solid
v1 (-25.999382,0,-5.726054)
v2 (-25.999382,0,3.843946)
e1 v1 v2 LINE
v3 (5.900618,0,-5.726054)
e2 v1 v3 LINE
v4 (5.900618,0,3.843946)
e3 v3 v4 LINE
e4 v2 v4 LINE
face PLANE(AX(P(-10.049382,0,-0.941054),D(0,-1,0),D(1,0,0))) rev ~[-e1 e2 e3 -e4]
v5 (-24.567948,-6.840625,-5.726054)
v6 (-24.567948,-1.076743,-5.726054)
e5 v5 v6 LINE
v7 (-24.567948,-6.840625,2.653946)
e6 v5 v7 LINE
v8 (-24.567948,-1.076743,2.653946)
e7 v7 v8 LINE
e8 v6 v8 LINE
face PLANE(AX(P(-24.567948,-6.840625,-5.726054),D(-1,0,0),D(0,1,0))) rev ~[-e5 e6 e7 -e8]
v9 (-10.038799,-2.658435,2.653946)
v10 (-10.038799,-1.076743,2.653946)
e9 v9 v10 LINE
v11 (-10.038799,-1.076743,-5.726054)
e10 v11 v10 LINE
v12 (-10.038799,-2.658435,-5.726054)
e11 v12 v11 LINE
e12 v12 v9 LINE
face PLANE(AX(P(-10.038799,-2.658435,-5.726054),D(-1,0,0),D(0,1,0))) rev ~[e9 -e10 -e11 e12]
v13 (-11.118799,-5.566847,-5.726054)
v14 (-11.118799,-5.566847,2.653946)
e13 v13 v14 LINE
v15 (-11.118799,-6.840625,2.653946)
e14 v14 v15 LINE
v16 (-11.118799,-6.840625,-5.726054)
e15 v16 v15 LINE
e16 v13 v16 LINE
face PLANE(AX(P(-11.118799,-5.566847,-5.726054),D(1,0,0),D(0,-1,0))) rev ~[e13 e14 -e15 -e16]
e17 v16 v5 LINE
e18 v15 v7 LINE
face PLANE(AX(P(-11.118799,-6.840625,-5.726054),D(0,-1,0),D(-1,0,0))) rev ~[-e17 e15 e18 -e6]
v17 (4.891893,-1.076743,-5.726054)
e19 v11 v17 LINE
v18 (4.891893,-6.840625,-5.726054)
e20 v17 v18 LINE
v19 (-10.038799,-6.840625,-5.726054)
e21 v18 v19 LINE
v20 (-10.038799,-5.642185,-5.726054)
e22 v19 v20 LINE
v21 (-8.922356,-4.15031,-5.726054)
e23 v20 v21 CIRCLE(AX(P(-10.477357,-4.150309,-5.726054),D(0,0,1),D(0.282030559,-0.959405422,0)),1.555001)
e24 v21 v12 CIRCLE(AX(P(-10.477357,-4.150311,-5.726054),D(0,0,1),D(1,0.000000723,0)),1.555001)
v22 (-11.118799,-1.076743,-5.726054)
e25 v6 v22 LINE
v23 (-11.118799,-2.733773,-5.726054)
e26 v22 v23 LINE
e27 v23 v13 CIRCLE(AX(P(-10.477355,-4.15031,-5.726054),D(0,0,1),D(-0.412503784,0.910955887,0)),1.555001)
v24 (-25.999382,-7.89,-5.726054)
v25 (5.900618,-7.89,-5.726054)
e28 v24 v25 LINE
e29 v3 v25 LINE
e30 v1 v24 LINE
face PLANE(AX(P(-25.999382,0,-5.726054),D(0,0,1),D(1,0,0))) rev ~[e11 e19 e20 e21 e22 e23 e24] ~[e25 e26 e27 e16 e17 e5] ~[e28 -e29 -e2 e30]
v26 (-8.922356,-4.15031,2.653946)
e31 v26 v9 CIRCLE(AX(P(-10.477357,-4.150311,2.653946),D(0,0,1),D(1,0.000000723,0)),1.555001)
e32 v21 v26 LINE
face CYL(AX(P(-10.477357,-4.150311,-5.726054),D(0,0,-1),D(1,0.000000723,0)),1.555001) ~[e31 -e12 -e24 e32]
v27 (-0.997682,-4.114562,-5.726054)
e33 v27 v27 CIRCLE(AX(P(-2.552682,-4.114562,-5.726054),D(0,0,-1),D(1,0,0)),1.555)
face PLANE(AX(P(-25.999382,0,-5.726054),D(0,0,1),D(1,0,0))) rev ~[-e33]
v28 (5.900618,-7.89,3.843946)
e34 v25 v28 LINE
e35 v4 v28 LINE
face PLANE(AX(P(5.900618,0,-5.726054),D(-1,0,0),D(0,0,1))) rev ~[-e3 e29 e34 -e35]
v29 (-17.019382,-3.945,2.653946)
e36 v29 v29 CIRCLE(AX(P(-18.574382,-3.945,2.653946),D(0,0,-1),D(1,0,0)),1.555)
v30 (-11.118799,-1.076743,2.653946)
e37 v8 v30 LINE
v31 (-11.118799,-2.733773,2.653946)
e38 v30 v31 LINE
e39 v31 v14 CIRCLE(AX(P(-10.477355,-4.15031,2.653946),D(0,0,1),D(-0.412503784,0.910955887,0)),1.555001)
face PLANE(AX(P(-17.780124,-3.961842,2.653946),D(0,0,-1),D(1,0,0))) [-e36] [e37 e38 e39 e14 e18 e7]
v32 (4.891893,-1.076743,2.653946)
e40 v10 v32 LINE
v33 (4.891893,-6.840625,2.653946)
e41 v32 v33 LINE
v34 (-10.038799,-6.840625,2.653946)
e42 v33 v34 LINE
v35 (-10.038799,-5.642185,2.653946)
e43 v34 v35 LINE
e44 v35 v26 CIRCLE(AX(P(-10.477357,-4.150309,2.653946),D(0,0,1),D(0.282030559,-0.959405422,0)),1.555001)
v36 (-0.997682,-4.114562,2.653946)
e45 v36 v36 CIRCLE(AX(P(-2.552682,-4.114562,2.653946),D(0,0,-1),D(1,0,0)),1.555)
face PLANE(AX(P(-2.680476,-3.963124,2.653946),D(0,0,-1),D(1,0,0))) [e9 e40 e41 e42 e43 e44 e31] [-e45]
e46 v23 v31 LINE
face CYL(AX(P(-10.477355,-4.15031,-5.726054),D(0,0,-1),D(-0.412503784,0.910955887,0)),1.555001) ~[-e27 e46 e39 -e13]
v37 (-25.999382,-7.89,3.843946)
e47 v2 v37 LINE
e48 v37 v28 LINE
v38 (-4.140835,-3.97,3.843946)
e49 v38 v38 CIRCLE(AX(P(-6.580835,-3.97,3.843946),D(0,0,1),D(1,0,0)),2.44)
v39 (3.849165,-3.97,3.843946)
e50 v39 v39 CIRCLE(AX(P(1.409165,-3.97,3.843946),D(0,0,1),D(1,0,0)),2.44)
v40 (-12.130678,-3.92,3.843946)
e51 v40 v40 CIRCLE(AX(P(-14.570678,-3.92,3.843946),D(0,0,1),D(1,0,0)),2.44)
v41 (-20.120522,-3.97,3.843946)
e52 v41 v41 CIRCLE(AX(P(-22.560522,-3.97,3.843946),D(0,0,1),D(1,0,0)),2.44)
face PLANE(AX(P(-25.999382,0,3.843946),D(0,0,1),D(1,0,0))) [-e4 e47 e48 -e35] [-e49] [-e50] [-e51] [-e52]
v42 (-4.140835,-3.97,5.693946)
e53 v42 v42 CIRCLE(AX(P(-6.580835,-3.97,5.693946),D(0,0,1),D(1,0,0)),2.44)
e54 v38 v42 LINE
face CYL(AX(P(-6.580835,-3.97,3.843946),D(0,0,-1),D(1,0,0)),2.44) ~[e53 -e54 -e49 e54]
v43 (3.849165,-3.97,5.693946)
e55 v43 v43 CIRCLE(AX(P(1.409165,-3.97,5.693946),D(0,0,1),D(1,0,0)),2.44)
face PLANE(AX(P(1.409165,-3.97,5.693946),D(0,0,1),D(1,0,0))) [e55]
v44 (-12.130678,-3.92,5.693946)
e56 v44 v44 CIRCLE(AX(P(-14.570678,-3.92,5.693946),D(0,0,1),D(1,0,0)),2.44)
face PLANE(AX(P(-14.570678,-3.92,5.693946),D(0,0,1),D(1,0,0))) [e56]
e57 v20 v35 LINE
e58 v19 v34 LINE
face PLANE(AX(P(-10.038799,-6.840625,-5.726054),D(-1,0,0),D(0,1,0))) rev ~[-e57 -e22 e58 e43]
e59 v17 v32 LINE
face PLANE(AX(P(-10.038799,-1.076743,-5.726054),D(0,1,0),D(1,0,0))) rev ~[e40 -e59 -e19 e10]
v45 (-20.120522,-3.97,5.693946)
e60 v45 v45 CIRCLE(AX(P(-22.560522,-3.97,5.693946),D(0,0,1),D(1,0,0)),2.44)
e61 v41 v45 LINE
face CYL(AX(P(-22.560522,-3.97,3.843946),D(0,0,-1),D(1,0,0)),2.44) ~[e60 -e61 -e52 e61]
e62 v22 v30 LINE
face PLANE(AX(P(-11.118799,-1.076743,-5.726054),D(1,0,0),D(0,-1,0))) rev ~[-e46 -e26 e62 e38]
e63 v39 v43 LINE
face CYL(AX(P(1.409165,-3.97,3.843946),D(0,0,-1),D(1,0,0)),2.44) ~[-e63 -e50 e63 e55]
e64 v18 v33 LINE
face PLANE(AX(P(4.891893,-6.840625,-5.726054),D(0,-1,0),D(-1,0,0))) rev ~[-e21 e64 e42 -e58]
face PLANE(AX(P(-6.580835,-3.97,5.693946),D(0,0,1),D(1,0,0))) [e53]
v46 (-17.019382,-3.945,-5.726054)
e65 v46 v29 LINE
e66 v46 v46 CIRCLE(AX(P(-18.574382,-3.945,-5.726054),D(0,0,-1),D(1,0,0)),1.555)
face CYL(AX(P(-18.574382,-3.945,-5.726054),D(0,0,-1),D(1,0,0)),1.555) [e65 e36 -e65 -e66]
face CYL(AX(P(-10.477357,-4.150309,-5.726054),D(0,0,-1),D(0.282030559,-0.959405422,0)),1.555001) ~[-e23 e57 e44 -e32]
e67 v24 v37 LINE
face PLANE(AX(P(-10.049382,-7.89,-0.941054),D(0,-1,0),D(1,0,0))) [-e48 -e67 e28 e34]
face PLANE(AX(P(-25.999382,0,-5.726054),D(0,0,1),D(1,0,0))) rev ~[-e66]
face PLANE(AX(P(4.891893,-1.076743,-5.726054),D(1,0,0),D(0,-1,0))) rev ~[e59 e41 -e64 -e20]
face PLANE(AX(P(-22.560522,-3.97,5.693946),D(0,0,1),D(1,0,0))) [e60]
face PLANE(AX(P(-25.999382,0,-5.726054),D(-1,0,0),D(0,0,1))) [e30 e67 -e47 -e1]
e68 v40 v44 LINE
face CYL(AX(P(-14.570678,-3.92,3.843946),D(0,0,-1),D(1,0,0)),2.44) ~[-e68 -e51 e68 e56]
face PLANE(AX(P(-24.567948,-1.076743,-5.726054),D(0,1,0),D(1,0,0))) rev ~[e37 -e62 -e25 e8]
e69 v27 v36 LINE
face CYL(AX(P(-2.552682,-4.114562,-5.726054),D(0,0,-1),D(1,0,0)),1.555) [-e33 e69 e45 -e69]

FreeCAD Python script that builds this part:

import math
import FreeCAD as App
import Part
import Sketcher
from FreeCAD import Vector
Q = App.Units.Quantity


def add_polygon(sketch, points):
    """Adds a closed chain of lines whose ends are joined by coincident constraints."""
    first, n = sketch.GeometryCount, len(points)
    for a, b in zip(points, points[1:] + points[:1]):
        sketch.addGeometry(Part.LineSegment(App.Vector(*a, 0), App.Vector(*b, 0)), False)
    for i in range(n):
        sketch.addConstraint(Sketcher.Constraint("Coincident", first + i, 2, first + (i + 1) % n, 1))

doc = App.newDocument("Part")
params = doc.addObject("Spreadsheet::Sheet", "Params")
for row, (alias, value) in enumerate([
    ("sketch1_width", "31.9 mm"),
    ("sketch1_height", "9.57 mm"),
    ("pad1_length", "7.89 mm"),
    ("sketch2_diameter", "4.88 mm"),
    ("pad2_length", "1.85 mm"),
    ("sketch3_diameter", "3.11 mm"),
    ("pocket1_length", "8.38 mm"),
], start=1):
    params.set(f"A{row}", alias)
    params.set(f"B{row}", "=" + value)
    params.setAlias(f"B{row}", alias)

body = doc.addObject("PartDesign::Body", "Body")

# Sketch on XZ plane
sketch1 = doc.addObject("Sketcher::SketchObject", "Sketch")
body.addObject(sketch1)
sketch1.AttachmentSupport = (doc.XZ_Plane, [""])
sketch1.MapMode = "FlatFace"
add_polygon(sketch1, [(-26, 4), (-26, -6), (6, -6), (6, 4)])  # lines 0-3
sketch1.addConstraint(Sketcher.Constraint("Vertical", 0))
sketch1.addConstraint(Sketcher.Constraint("Horizontal", 1))
sketch1.addConstraint(Sketcher.Constraint("Vertical", 2))
sketch1.addConstraint(Sketcher.Constraint("Horizontal", 3))
sketch1.addConstraint(Sketcher.Constraint("DistanceX", 1, 1, 1, 2, Q("31.9 mm")))
sketch1.addConstraint(Sketcher.Constraint("DistanceY", 0, 2, 0, 1, Q("9.57 mm")))
sketch1.addConstraint(Sketcher.Constraint("DistanceX", 0, 2, -1, 1, Q("25.999382 mm")))
sketch1.addConstraint(Sketcher.Constraint("DistanceY", 0, 2, -1, 1, Q("5.726054 mm")))
sketch1.setExpression("Constraints[8]", "Params.sketch1_width")
sketch1.setExpression("Constraints[9]", "Params.sketch1_height")
pad1 = doc.addObject("PartDesign::Pad", "Pad")
body.addObject(pad1)
pad1.Profile = sketch1
pad1.setExpression("Length", "Params.pad1_length")

# Sketch on XY plane
sketch2 = doc.addObject("Sketcher::SketchObject", "Sketch001")
body.addObject(sketch2)
sketch2.AttachmentSupport = (doc.XY_Plane, [""])
sketch2.MapMode = "FlatFace"
sketch2.AttachmentOffset = App.Placement(Vector(0, 0, 3.843946), App.Rotation())
sketch2.addGeometry(Part.Circle(Vector(-22.6, -4, 0), Vector(0, 0, 1), 2.4), False)
sketch2.addGeometry(Part.Circle(Vector(-14.6, -3.9, 0), Vector(0, 0, 1), 2.4), False)
sketch2.addGeometry(Part.Circle(Vector(-6.6, -4, 0), Vector(0, 0, 1), 2.4), False)
sketch2.addGeometry(Part.Circle(Vector(1.4, -4, 0), Vector(0, 0, 1), 2.4), False)
sketch2.addConstraint(Sketcher.Constraint("Equal", 0, 1))
sketch2.addConstraint(Sketcher.Constraint("Equal", 1, 2))
sketch2.addConstraint(Sketcher.Constraint("Equal", 2, 3))
sketch2.addConstraint(Sketcher.Constraint("Horizontal", 0, 3, 2, 3))
sketch2.addConstraint(Sketcher.Constraint("Horizontal", 2, 3, 3, 3))
sketch2.addConstraint(Sketcher.Constraint("Diameter", 0, Q("4.88 mm")))
sketch2.addConstraint(Sketcher.Constraint("DistanceY", 0, 3, -1, 1, Q("3.97 mm")))
sketch2.addConstraint(Sketcher.Constraint("DistanceY", 1, 3, -1, 1, Q("3.92 mm")))
sketch2.addConstraint(Sketcher.Constraint("DistanceX", 2, 3, 3, 3, Q("7.99 mm")))
sketch2.addConstraint(Sketcher.Constraint("DistanceX", 0, 3, -1, 1, Q("22.560522 mm")))
sketch2.addConstraint(Sketcher.Constraint("DistanceX", 1, 3, -1, 1, Q("14.570678 mm")))
sketch2.addConstraint(Sketcher.Constraint("DistanceX", 2, 3, -1, 1, Q("6.580835 mm")))
sketch2.setExpression("Constraints[5]", "Params.sketch2_diameter")
pad2 = doc.addObject("PartDesign::Pad", "Pad001")
body.addObject(pad2)
pad2.Profile = sketch2
pad2.setExpression("Length", "Params.pad2_length")

# Sketch on XY plane
sketch3 = doc.addObject("Sketcher::SketchObject", "Sketch002")
body.addObject(sketch3)
sketch3.AttachmentSupport = (doc.XY_Plane, [""])
sketch3.MapMode = "FlatFace"
sketch3.AttachmentOffset = App.Placement(Vector(0, 0, -5.726054), App.Rotation())
sketch3.addGeometry(Part.LineSegment(Vector(-11.1, -6.8, 0), Vector(-24.6, -6.8, 0)), False)
sketch3.addGeometry(Part.LineSegment(Vector(-24.6, -6.8, 0), Vector(-24.6, -1.1, 0)), False)
sketch3.addGeometry(Part.LineSegment(Vector(-24.6, -1.1, 0), Vector(-11.1, -1.1, 0)), False)
sketch3.addGeometry(Part.LineSegment(Vector(-11.1, -1.1, 0), Vector(-11.1, -2.7, 0)), False)
sketch3.addGeometry(Part.ArcOfCircle(Part.Circle(Vector(-10.5, -4.2, 0), Vector(0, 0, 1), 1.6), math.radians(114), math.radians(246)), False)
sketch3.addGeometry(Part.LineSegment(Vector(-11.1, -5.6, 0), Vector(-11.1, -6.8, 0)), False)
sketch3.addGeometry(Part.Circle(Vector(-18.6, -3.9, 0), Vector(0, 0, 1), 1.6), False)
sketch3.addGeometry(Part.LineSegment(Vector(4.9, -6.8, 0), Vector(-10, -6.8, 0)), False)
sketch3.addGeometry(Part.LineSegment(Vector(-10, -6.8, 0), Vector(-10, -5.6, 0)), False)
sketch3.addGeometry(Part.ArcOfCircle(Part.Circle(Vector(-10.5, -4.2, 0), Vector(0, 0, 1), 1.6), math.radians(-74), math.radians(0)), False)
sketch3.addGeometry(Part.ArcOfCircle(Part.Circle(Vector(-10.5, -4.2, 0), Vector(0, 0, 1), 1.6), math.radians(0), math.radians(74)), False)
sketch3.addGeometry(Part.LineSegment(Vector(-10, -2.7, 0), Vector(-10, -1.1, 0)), False)
sketch3.addGeometry(Part.LineSegment(Vector(-10, -1.1, 0), Vector(4.9, -1.1, 0)), False)
sketch3.addGeometry(Part.LineSegment(Vector(4.9, -1.1, 0), Vector(4.9, -6.8, 0)), False)
sketch3.addGeometry(Part.Circle(Vector(-2.6, -4.1, 0), Vector(0, 0, 1), 1.6), False)
sketch3.addConstraint(Sketcher.Constraint("Coincident", 0, 2, 1, 1))
sketch3.addConstraint(Sketcher.Constraint("Coincident", 1, 2, 2, 1))
sketch3.addConstraint(Sketcher.Constraint("Coincident", 2, 2, 3, 1))
sketch3.addConstraint(Sketcher.Constraint("Coincident", 3, 2, 4, 1))
sketch3.addConstraint(Sketcher.Constraint("Coincident", 4, 2, 5, 1))
sketch3.addConstraint(Sketcher.Constraint("Coincident", 5, 2, 0, 1))
sketch3.addConstraint(Sketcher.Constraint("Coincident", 7, 2, 8, 1))
sketch3.addConstraint(Sketcher.Constraint("Coincident", 8, 2, 9, 1))
sketch3.addConstraint(Sketcher.Constraint("Tangent", 9, 2, 10, 1))
sketch3.addConstraint(Sketcher.Constraint("Coincident", 10, 2, 11, 1))
sketch3.addConstraint(Sketcher.Constraint("Coincident", 11, 2, 12, 1))
sketch3.addConstraint(Sketcher.Constraint("Coincident", 12, 2, 13, 1))
sketch3.addConstraint(Sketcher.Constraint("Coincident", 13, 2, 7, 1))
sketch3.addConstraint(Sketcher.Constraint("Horizontal", 0))
sketch3.addConstraint(Sketcher.Constraint("Vertical", 1))
sketch3.addConstraint(Sketcher.Constraint("Horizontal", 2))
sketch3.addConstraint(Sketcher.Constraint("Vertical", 3))
sketch3.addConstraint(Sketcher.Constraint("Vertical", 5))
sketch3.addConstraint(Sketcher.Constraint("Horizontal", 7))
sketch3.addConstraint(Sketcher.Constraint("Vertical", 8))
sketch3.addConstraint(Sketcher.Constraint("Vertical", 11))
sketch3.addConstraint(Sketcher.Constraint("Horizontal", 12))
sketch3.addConstraint(Sketcher.Constraint("Vertical", 13))
sketch3.addConstraint(Sketcher.Constraint("Coincident", 9, 3, 4, 3))
sketch3.addConstraint(Sketcher.Constraint("Equal", 4, 6))
sketch3.addConstraint(Sketcher.Constraint("Equal", 6, 9))
sketch3.addConstraint(Sketcher.Constraint("Equal", 9, 10))
sketch3.addConstraint(Sketcher.Constraint("Equal", 10, 14))
sketch3.addConstraint(Sketcher.Constraint("Horizontal", 5, 2, 7, 2))
sketch3.addConstraint(Sketcher.Constraint("Horizontal", 10, 3, 9, 2))
sketch3.addConstraint(Sketcher.Constraint("Horizontal", 2, 2, 11, 2))
sketch3.addConstraint(Sketcher.Constraint("Vertical", 3, 2, 4, 2))
sketch3.addConstraint(Sketcher.Constraint("Vertical", 8, 2, 10, 2))
sketch3.addConstraint(Sketcher.Constraint("Diameter", 6, Q("3.11 mm")))
sketch3.addConstraint(Sketcher.Constraint("DistanceX", 5, 2, 7, 2, Q("1.08 mm")))
sketch3.addConstraint(Sketcher.Constraint("DistanceY", 6, 3, -1, 1, Q("3.945 mm")))
sketch3.addConstraint(Sketcher.Constraint("DistanceX", 0, 2, 0, 1, Q("13.449149 mm")))
sketch3.addConstraint(Sketcher.Constraint("DistanceX", 7, 2, 7, 1, Q("14.930692 mm")))
sketch3.addConstraint(Sketcher.Constraint("DistanceY", 3, 2, 3, 1, Q("1.65703 mm")))
sketch3.addConstraint(Sketcher.Constraint("DistanceY", 5, 2, 5, 1, Q("1.273778 mm")))
sketch3.addConstraint(Sketcher.Constraint("DistanceY", 8, 1, 8, 2, Q("1.19844 mm")))
sketch3.addConstraint(Sketcher.Constraint("DistanceX", 2, 2, -1, 1, Q("11.118799 mm")))
sketch3.addConstraint(Sketcher.Constraint("DistanceX", 6, 3, 14, 3, Q("16.0217 mm")))
sketch3.addConstraint(Sketcher.Constraint("DistanceY", 4, 3, -1, 1, Q("4.15031 mm")))
sketch3.addConstraint(Sketcher.Constraint("DistanceX", 6, 3, -1, 1, Q("18.574382 mm")))
sketch3.addConstraint(Sketcher.Constraint("DistanceY", 10, 3, 14, 3, Q("0.035749 mm")))
sketch3.setExpression("Constraints[33]", "Params.sketch3_diameter")
pocket1 = doc.addObject("PartDesign::Pocket", "Pocket")
body.addObject(pocket1)
pocket1.Profile = sketch3
pocket1.setExpression("Length", "Params.pocket1_length")
pocket1.Reversed = True

doc.recompute()
